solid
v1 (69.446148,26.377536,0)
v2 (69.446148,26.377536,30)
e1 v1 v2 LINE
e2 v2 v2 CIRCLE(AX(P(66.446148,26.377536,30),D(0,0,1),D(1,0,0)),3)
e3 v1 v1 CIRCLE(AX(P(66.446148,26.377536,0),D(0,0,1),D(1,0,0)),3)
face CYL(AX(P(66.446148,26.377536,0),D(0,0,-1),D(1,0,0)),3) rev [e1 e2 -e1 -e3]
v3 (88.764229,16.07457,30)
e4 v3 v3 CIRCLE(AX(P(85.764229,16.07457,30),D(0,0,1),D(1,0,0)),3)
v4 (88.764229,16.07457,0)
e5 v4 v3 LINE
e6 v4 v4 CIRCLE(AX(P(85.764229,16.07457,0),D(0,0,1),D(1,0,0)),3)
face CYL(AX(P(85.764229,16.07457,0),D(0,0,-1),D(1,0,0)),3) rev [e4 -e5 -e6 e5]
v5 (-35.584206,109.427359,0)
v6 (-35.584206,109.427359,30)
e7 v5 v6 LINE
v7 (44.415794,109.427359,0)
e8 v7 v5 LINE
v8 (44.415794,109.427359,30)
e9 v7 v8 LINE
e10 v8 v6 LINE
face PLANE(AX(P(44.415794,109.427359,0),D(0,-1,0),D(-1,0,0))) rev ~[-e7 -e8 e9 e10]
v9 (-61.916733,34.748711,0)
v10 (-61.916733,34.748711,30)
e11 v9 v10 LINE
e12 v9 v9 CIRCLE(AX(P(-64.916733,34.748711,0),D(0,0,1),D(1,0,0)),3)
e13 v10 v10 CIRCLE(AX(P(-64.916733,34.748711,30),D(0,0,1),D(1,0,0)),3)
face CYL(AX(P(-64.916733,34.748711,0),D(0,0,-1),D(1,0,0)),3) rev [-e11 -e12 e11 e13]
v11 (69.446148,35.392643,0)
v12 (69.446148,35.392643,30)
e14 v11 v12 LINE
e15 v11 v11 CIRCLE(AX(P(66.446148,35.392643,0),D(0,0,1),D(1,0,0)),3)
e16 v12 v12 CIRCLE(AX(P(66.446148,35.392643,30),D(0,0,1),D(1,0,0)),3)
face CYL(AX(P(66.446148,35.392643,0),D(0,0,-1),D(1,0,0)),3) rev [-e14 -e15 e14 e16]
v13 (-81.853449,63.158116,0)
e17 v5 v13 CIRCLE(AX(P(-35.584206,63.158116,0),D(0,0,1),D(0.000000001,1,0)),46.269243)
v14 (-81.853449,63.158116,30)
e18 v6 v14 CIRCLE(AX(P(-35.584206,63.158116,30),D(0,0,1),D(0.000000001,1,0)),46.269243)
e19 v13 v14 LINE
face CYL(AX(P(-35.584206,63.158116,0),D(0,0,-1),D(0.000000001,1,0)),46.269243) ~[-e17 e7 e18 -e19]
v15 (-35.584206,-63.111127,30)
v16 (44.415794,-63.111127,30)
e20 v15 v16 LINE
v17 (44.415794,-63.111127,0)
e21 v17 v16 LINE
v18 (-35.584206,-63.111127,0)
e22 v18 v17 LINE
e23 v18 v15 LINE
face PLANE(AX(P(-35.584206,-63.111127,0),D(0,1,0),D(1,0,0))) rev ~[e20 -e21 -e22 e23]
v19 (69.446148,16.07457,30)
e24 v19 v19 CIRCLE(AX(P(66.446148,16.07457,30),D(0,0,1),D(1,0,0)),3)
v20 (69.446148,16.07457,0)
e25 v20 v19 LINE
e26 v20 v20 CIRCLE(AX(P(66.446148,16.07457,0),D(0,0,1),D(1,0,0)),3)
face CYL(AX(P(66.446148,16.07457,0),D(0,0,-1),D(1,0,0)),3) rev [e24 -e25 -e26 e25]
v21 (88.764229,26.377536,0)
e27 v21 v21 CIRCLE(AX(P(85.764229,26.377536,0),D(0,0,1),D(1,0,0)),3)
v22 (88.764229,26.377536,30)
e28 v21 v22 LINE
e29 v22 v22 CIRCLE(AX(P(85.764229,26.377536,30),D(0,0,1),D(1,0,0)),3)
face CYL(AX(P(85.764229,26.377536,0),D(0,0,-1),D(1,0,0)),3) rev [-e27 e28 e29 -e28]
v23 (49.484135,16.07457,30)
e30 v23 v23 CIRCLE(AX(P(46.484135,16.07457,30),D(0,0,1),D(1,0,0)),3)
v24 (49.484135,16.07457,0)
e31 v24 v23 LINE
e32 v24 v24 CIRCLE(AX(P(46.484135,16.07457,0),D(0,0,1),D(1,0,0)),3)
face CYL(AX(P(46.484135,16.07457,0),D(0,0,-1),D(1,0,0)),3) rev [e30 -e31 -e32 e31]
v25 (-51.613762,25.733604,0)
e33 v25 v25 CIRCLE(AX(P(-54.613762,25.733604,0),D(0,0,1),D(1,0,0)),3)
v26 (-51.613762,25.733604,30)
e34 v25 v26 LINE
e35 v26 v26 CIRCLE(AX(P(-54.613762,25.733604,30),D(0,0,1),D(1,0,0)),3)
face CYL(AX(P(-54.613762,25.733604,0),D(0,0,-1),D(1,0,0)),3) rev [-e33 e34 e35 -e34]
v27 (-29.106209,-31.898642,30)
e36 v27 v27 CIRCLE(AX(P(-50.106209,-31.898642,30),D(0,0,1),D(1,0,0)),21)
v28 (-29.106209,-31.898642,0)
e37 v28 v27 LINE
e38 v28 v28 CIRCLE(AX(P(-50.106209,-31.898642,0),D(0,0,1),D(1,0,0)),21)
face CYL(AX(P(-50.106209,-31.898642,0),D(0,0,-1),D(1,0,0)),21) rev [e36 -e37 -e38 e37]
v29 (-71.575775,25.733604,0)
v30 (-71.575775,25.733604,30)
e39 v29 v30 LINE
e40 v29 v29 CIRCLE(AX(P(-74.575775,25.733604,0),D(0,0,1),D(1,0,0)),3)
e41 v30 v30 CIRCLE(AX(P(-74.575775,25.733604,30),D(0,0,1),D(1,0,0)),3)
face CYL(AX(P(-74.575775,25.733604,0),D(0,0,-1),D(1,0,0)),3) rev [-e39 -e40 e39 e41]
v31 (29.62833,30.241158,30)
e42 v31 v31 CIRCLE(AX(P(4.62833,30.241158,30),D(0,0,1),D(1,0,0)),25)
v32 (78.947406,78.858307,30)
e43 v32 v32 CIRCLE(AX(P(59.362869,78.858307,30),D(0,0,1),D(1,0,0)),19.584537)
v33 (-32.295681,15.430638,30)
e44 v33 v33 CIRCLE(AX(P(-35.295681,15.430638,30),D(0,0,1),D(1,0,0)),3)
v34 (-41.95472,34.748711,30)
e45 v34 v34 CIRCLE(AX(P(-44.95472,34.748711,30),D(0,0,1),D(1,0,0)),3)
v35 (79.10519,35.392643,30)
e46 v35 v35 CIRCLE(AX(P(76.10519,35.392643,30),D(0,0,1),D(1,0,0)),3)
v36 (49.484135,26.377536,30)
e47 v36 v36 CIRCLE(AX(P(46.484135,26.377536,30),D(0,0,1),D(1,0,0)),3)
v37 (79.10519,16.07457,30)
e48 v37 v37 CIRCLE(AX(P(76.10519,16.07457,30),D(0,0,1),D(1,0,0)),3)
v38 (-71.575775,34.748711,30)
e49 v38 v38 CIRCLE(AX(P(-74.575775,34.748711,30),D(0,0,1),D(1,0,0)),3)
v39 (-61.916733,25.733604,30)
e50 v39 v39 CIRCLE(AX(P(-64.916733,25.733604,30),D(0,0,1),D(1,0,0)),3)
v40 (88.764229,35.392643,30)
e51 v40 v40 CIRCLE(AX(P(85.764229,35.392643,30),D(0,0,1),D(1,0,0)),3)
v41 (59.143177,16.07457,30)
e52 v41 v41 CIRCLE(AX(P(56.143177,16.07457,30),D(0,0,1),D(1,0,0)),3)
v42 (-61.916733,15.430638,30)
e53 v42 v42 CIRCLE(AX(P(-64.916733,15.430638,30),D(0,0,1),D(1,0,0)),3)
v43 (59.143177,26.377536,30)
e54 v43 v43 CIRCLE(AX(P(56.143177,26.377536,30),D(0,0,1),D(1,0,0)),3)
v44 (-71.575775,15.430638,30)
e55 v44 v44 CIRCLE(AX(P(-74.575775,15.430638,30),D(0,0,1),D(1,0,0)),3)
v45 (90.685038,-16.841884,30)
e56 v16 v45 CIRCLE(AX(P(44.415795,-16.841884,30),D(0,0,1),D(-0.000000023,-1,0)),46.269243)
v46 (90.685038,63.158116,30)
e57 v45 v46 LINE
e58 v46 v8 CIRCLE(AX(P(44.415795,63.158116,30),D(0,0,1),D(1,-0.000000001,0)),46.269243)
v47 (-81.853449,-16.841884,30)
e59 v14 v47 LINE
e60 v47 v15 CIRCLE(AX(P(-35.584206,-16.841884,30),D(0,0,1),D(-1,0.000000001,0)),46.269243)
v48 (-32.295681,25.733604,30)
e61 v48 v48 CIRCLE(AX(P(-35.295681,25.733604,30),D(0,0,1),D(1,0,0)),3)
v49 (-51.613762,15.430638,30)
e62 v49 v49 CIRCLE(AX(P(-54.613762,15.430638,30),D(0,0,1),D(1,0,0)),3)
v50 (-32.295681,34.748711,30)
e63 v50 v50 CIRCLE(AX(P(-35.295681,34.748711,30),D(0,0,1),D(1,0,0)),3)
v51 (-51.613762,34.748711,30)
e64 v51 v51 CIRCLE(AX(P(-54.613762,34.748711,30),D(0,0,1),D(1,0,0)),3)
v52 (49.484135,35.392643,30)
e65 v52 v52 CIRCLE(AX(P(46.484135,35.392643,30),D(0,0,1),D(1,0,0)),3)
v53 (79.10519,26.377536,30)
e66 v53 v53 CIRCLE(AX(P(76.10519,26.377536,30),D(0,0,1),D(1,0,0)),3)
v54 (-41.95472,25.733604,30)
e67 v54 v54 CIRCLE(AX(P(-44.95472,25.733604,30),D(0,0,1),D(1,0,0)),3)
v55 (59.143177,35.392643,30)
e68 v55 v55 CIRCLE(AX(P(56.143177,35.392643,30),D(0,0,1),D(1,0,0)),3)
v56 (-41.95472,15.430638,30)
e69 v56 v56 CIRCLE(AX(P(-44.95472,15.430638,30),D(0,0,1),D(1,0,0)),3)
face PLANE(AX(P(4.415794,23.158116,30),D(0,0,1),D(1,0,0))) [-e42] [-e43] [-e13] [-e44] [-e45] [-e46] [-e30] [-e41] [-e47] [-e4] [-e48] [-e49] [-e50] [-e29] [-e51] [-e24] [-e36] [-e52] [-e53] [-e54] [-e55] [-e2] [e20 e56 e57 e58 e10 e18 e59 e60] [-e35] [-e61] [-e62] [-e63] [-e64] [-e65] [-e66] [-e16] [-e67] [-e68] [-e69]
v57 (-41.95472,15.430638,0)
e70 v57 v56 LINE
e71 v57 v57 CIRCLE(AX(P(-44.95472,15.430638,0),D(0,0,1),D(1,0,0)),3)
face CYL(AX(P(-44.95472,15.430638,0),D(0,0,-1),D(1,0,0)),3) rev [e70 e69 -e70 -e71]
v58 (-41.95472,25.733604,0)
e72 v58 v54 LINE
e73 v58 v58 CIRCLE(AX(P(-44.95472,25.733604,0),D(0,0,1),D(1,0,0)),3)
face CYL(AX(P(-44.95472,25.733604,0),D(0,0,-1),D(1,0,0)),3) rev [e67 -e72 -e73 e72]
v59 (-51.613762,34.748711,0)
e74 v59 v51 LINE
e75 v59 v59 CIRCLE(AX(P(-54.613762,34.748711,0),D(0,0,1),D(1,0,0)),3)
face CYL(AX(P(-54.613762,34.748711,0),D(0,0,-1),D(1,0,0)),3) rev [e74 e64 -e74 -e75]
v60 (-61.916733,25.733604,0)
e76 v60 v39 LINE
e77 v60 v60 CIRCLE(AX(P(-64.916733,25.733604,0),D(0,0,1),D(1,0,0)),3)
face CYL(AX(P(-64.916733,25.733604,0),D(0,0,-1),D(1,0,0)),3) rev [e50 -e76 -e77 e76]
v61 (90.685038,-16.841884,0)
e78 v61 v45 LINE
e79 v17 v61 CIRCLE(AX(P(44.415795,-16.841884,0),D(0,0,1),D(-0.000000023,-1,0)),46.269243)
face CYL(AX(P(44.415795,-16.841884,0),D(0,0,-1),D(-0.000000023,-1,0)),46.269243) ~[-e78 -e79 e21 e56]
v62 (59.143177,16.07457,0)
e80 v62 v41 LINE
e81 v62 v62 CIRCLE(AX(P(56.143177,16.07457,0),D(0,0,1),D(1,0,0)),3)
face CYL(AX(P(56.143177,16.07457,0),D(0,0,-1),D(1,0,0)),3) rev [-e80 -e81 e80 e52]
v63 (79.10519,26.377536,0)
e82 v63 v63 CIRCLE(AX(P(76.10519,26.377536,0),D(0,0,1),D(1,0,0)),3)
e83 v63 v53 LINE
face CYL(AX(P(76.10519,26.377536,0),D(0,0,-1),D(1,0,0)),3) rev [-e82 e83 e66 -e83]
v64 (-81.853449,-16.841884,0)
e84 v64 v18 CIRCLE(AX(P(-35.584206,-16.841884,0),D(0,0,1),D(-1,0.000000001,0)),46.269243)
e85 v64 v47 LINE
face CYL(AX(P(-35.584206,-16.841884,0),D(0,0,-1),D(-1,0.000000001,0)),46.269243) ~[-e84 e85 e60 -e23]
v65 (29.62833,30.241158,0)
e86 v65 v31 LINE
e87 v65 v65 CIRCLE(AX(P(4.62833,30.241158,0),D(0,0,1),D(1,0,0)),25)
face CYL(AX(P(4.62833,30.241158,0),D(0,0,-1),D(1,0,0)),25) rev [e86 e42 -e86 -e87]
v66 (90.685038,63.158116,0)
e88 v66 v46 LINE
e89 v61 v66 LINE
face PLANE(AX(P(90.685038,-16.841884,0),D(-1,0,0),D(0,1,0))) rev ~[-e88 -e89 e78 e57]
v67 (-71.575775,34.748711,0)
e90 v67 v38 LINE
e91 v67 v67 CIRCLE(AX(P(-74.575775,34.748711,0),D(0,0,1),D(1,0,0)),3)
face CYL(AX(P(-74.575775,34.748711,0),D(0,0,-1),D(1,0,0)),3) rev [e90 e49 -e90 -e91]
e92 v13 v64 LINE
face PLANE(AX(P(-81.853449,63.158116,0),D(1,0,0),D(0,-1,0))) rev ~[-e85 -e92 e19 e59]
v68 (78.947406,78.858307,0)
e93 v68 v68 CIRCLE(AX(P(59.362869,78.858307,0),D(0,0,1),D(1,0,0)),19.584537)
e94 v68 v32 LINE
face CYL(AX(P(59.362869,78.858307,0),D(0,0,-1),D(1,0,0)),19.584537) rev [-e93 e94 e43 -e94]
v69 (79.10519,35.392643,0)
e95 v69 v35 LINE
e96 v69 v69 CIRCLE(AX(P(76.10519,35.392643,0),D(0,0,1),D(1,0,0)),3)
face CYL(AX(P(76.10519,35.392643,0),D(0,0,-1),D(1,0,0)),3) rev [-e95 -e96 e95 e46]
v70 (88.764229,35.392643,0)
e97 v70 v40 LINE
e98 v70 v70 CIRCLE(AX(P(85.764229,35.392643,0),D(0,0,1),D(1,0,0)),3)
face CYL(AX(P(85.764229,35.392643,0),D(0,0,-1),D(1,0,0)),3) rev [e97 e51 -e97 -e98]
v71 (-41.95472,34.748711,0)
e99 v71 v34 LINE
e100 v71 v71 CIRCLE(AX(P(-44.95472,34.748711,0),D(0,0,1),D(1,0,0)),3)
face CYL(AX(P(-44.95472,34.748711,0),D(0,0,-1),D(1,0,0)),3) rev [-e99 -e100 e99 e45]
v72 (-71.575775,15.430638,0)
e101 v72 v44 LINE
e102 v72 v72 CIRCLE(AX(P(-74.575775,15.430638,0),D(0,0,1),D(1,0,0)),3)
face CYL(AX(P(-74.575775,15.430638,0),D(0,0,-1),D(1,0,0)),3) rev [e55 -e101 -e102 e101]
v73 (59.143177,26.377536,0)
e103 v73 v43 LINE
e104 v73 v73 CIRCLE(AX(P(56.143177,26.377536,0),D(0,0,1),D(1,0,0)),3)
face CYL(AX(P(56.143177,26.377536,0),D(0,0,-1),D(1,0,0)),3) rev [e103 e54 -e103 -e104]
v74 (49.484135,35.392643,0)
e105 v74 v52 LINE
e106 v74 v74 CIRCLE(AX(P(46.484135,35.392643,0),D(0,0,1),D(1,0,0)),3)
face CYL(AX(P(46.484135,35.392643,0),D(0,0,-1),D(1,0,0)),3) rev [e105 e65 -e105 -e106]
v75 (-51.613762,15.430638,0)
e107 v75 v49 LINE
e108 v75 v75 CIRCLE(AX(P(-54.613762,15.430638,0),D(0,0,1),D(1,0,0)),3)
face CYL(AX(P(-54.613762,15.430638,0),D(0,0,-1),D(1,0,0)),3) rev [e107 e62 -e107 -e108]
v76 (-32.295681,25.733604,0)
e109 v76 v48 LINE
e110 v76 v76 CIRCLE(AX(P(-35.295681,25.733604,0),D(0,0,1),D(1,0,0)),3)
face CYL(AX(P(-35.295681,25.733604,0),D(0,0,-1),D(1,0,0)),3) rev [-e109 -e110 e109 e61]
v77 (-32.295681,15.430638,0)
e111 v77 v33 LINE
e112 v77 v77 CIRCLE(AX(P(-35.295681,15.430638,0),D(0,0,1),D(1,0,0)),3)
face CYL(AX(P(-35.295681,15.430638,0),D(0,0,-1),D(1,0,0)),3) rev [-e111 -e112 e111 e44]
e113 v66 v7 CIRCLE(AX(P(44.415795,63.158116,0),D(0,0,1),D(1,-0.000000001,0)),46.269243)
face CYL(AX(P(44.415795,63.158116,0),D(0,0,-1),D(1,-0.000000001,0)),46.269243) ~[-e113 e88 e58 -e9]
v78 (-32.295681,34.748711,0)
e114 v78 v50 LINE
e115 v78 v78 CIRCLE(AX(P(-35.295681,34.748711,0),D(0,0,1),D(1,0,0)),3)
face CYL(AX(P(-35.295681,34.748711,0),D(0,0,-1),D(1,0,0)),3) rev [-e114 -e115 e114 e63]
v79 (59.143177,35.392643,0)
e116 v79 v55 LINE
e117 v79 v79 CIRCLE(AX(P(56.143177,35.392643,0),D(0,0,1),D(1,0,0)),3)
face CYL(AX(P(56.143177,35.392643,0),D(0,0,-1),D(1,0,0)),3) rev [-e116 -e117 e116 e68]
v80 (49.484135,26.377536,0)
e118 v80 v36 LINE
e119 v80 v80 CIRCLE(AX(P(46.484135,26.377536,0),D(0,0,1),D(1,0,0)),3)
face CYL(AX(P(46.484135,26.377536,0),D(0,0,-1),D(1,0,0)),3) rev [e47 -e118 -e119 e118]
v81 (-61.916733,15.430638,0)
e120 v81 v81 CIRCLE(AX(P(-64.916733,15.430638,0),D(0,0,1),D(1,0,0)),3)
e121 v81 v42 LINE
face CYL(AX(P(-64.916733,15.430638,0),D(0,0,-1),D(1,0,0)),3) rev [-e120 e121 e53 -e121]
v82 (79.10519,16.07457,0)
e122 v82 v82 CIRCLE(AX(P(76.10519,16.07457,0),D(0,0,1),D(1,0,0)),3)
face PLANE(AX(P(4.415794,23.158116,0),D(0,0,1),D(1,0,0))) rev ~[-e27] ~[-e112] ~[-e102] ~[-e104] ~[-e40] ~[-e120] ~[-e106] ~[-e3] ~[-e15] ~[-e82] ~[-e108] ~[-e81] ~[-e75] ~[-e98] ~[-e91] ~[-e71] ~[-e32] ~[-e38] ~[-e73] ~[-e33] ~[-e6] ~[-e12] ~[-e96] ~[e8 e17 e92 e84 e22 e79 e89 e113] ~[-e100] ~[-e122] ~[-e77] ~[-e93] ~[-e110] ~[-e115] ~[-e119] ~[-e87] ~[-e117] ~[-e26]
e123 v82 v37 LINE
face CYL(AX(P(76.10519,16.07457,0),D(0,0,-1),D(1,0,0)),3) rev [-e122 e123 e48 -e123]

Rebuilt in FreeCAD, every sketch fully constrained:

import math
import FreeCAD as App
import Part
import Sketcher
from FreeCAD import Vector

doc = App.newDocument("Part")
params = doc.addObject("Spreadsheet::Sheet", "Params")
for row, (alias, value) in enumerate([
    ("sketch1_diameter", "42 mm"),
    ("sketch1_diameter2", "6 mm"),
    ("sketch1_diameter3", "50 mm"),
    ("sketch1_width", "80 mm"),
    ("pad1_length", "30 mm"),
    ("sketch2_diameter", "42 mm"),
    ("sketch2_diameter2", "6 mm"),
    ("sketch2_diameter3", "50 mm"),
    ("sketch2_width", "80 mm"),
    ("pad2_length", "30 mm"),
], start=1):
    params.set(f"A{row}", alias)
    params.set(f"B{row}", "=" + value)
    params.setAlias(f"B{row}", alias)

body = doc.addObject("PartDesign::Body", "Body")

sketch1 = body.newObject("Sketcher::SketchObject", "Sketch")
sketch1.AttachmentSupport = (doc.getObject("XY_Plane"), [""])
sketch1.MapMode = "FlatFace"
sketch1.addGeometry([
    Part.LineSegment(Vector(-35.584206, -63.111127, 0), Vector(44.415794, -63.111127, 0)),
    Part.ArcOfCircle(Part.Circle(Vector(44.415795, -16.841884, 0), Vector(0, 0, 1), 46.269243), math.radians(-90.000001), math.radians(0)),
    Part.LineSegment(Vector(90.685038, -16.841884, 0), Vector(90.685038, 63.158116, 0)),
    Part.ArcOfCircle(Part.Circle(Vector(44.415795, 63.158116, 0), Vector(0, 0, 1), 46.269243), math.radians(0), math.radians(90.000001)),
    Part.LineSegment(Vector(44.415794, 109.427359, 0), Vector(-35.584206, 109.427359, 0)),
    Part.ArcOfCircle(Part.Circle(Vector(-35.584206, 63.158116, 0), Vector(0, 0, 1), 46.269243), math.radians(90), math.radians(180)),
    Part.LineSegment(Vector(-81.853449, 63.158116, 0), Vector(-81.853449, -16.841884, 0)),
    Part.ArcOfCircle(Part.Circle(Vector(-35.584206, -16.841884, 0), Vector(0, 0, 1), 46.269243), math.radians(180), math.radians(270)),
    Part.Circle(Vector(-50.106209, -31.898642, 0), Vector(0, 0, 1), 21),
    Part.Circle(Vector(-74.575775, 15.430638, 0), Vector(0, 0, 1), 3),
    Part.Circle(Vector(-64.916733, 15.430638, 0), Vector(0, 0, 1), 3),
    Part.Circle(Vector(-54.613762, 15.430638, 0), Vector(0, 0, 1), 3),
    Part.Circle(Vector(-44.95472, 15.430638, 0), Vector(0, 0, 1), 3),
    Part.Circle(Vector(-35.295681, 15.430638, 0), Vector(0, 0, 1), 3),
    Part.Circle(Vector(46.484135, 16.07457, 0), Vector(0, 0, 1), 3),
    Part.Circle(Vector(56.143177, 16.07457, 0), Vector(0, 0, 1), 3),
    Part.Circle(Vector(66.446148, 16.07457, 0), Vector(0, 0, 1), 3),
    Part.Circle(Vector(76.10519, 16.07457, 0), Vector(0, 0, 1), 3),
    Part.Circle(Vector(85.764229, 16.07457, 0), Vector(0, 0, 1), 3),
    Part.Circle(Vector(-74.575775, 25.733604, 0), Vector(0, 0, 1), 3),
    Part.Circle(Vector(-64.916733, 25.733604, 0), Vector(0, 0, 1), 3),
    Part.Circle(Vector(-74.575775, 34.748711, 0), Vector(0, 0, 1), 3),
    Part.Circle(Vector(-64.916733, 34.748711, 0), Vector(0, 0, 1), 3),
    Part.Circle(Vector(-54.613762, 25.733604, 0), Vector(0, 0, 1), 3),
    Part.Circle(Vector(-44.95472, 25.733604, 0), Vector(0, 0, 1), 3),
    Part.Circle(Vector(-54.613762, 34.748711, 0), Vector(0, 0, 1), 3),
    Part.Circle(Vector(-44.95472, 34.748711, 0), Vector(0, 0, 1), 3),
    Part.Circle(Vector(-35.295681, 25.733604, 0), Vector(0, 0, 1), 3),
    Part.Circle(Vector(-35.295681, 34.748711, 0), Vector(0, 0, 1), 3),
    Part.Circle(Vector(4.62833, 30.241158, 0), Vector(0, 0, 1), 25),
    Part.Circle(Vector(46.484135, 26.377536, 0), Vector(0, 0, 1), 3),
    Part.Circle(Vector(46.484135, 35.392643, 0), Vector(0, 0, 1), 3),
    Part.Circle(Vector(56.143177, 26.377536, 0), Vector(0, 0, 1), 3),
    Part.Circle(Vector(66.446148, 26.377536, 0), Vector(0, 0, 1), 3),
    Part.Circle(Vector(56.143177, 35.392643, 0), Vector(0, 0, 1), 3),
    Part.Circle(Vector(66.446148, 35.392643, 0), Vector(0, 0, 1), 3),
    Part.Circle(Vector(76.10519, 26.377536, 0), Vector(0, 0, 1), 3),
    Part.Circle(Vector(85.764229, 26.377536, 0), Vector(0, 0, 1), 3),
    Part.Circle(Vector(76.10519, 35.392643, 0), Vector(0, 0, 1), 3),
    Part.Circle(Vector(85.764229, 35.392643, 0), Vector(0, 0, 1), 3),
    Part.Circle(Vector(59.362869, 78.858307, 0), Vector(0, 0, 1), 19.584537),
], False)
sketch1.addConstraint([
    Sketcher.Constraint("Tangent", 0, 2, 1, 1),
    Sketcher.Constraint("Tangent", 1, 2, 2, 1),
    Sketcher.Constraint("Tangent", 2, 2, 3, 1),
    Sketcher.Constraint("Tangent", 3, 2, 4, 1),
    Sketcher.Constraint("Tangent", 4, 2, 5, 1),
    Sketcher.Constraint("Tangent", 5, 2, 6, 1),
    Sketcher.Constraint("Tangent", 6, 2, 7, 1),
    Sketcher.Constraint("Tangent", 7, 2, 0, 1),
    Sketcher.Constraint("Horizontal", 0),
    Sketcher.Constraint("Vertical", 2),
    Sketcher.Constraint("Horizontal", 4),
    Sketcher.Constraint("Vertical", 6),
    Sketcher.Constraint("Equal", 1, 3),
    Sketcher.Constraint("Equal", 3, 5),
    Sketcher.Constraint("Equal", 5, 7),
    Sketcher.Constraint("Equal", 9, 10),
    Sketcher.Constraint("Equal", 10, 11),
    Sketcher.Constraint("Equal", 11, 12),
    Sketcher.Constraint("Equal", 12, 13),
    Sketcher.Constraint("Equal", 13, 14),
    Sketcher.Constraint("Equal", 14, 15),
    Sketcher.Constraint("Equal", 15, 16),
    Sketcher.Constraint("Equal", 16, 17),
    Sketcher.Constraint("Equal", 17, 18),
    Sketcher.Constraint("Equal", 18, 19),
    Sketcher.Constraint("Equal", 19, 20),
    Sketcher.Constraint("Equal", 20, 21),
    Sketcher.Constraint("Equal", 21, 22),
    Sketcher.Constraint("Equal", 22, 23),
    Sketcher.Constraint("Equal", 23, 24),
    Sketcher.Constraint("Equal", 24, 25),
    Sketcher.Constraint("Equal", 25, 26),
    Sketcher.Constraint("Equal", 26, 27),
    Sketcher.Constraint("Equal", 27, 28),
    Sketcher.Constraint("Equal", 28, 30),
    Sketcher.Constraint("Equal", 30, 31),
    Sketcher.Constraint("Equal", 31, 32),
    Sketcher.Constraint("Equal", 32, 33),
    Sketcher.Constraint("Equal", 33, 34),
    Sketcher.Constraint("Equal", 34, 35),
    Sketcher.Constraint("Equal", 35, 36),
    Sketcher.Constraint("Equal", 36, 37),
    Sketcher.Constraint("Equal", 37, 38),
    Sketcher.Constraint("Equal", 38, 39),
    Sketcher.Constraint("Horizontal", 9, 3, 10, 3),
    Sketcher.Constraint("Horizontal", 10, 3, 11, 3),
    Sketcher.Constraint("Horizontal", 11, 3, 12, 3),
    Sketcher.Constraint("Horizontal", 12, 3, 13, 3),
    Sketcher.Constraint("Horizontal", 14, 3, 15, 3),
    Sketcher.Constraint("Horizontal", 15, 3, 16, 3),
    Sketcher.Constraint("Horizontal", 16, 3, 17, 3),
    Sketcher.Constraint("Horizontal", 17, 3, 18, 3),
    Sketcher.Constraint("Horizontal", 19, 3, 20, 3),
    Sketcher.Constraint("Horizontal", 21, 3, 22, 3),
    Sketcher.Constraint("Horizontal", 20, 3, 23, 3),
    Sketcher.Constraint("Horizontal", 23, 3, 24, 3),
    Sketcher.Constraint("Horizontal", 22, 3, 25, 3),
    Sketcher.Constraint("Horizontal", 25, 3, 26, 3),
    Sketcher.Constraint("Horizontal", 24, 3, 27, 3),
    Sketcher.Constraint("Horizontal", 26, 3, 28, 3),
    Sketcher.Constraint("Horizontal", 30, 3, 32, 3),
    Sketcher.Constraint("Horizontal", 32, 3, 33, 3),
    Sketcher.Constraint("Horizontal", 31, 3, 34, 3),
    Sketcher.Constraint("Horizontal", 34, 3, 35, 3),
    Sketcher.Constraint("Horizontal", 33, 3, 36, 3),
    Sketcher.Constraint("Horizontal", 36, 3, 37, 3),
    Sketcher.Constraint("Horizontal", 35, 3, 38, 3),
    Sketcher.Constraint("Horizontal", 38, 3, 39, 3),
    Sketcher.Constraint("Vertical", 9, 3, 19, 3),
    Sketcher.Constraint("Vertical", 10, 3, 20, 3),
    Sketcher.Constraint("Vertical", 19, 3, 21, 3),
    Sketcher.Constraint("Vertical", 20, 3, 22, 3),
    Sketcher.Constraint("Vertical", 11, 3, 23, 3),
    Sketcher.Constraint("Vertical", 12, 3, 24, 3),
    Sketcher.Constraint("Vertical", 23, 3, 25, 3),
    Sketcher.Constraint("Vertical", 24, 3, 26, 3),
    Sketcher.Constraint("Vertical", 13, 3, 27, 3),
    Sketcher.Constraint("Vertical", 27, 3, 28, 3),
    Sketcher.Constraint("Vertical", 14, 3, 30, 3),
    Sketcher.Constraint("Vertical", 30, 3, 31, 3),
    Sketcher.Constraint("Vertical", 15, 3, 32, 3),
    Sketcher.Constraint("Vertical", 16, 3, 33, 3),
    Sketcher.Constraint("Vertical", 32, 3, 34, 3),
    Sketcher.Constraint("Vertical", 33, 3, 35, 3),
    Sketcher.Constraint("Vertical", 17, 3, 36, 3),
    Sketcher.Constraint("Vertical", 18, 3, 37, 3),
    Sketcher.Constraint("Vertical", 36, 3, 38, 3),
    Sketcher.Constraint("Vertical", 37, 3, 39, 3),
    Sketcher.Constraint("Equal", 4, 2),
    Sketcher.Constraint("Diameter", 8, 42.0),
    Sketcher.Constraint("Diameter", 9, 6.0),
    Sketcher.Constraint("Diameter", 29, 50.0),
    Sketcher.Constraint("DistanceX", 0, 1, 0, 2, 80.0),
    Sketcher.Constraint("Diameter", 40, 39.169074),
    Sketcher.Constraint("Radius", 1, 46.269243),
    Sketcher.Constraint("DistanceX", 8, 3, -1, 1, 50.106209),
    Sketcher.Constraint("DistanceY", 8, 3, -1, 1, 31.898642),
    Sketcher.Constraint("DistanceX", 12, 3, -1, 1, 44.95472),
    Sketcher.Constraint("DistanceX", 13, 3, -1, 1, 35.295681),
    Sketcher.Constraint("DistanceY", -1, 1, 14, 3, 16.07457),
    Sketcher.Constraint("DistanceX", -1, 1, 17, 3, 76.10519),
    Sketcher.Constraint("DistanceX", -1, 1, 18, 3, 85.764229),
    Sketcher.Constraint("DistanceY", -1, 1, 21, 3, 34.748711),
    Sketcher.Constraint("DistanceX", -1, 1, 29, 3, 4.62833),
    Sketcher.Constraint("DistanceX", -1, 1, 40, 3, 59.362869),
    Sketcher.Constraint("DistanceX", -1, 1, 1, 2, 90.685038),
    Sketcher.Constraint("DistanceY", -1, 1, 3, 2, 109.427359),
    Sketcher.Constraint("DistanceX", 9, 3, 7, 3, 38.991569),
    Sketcher.Constraint("DistanceY", 8, 3, 9, 3, 47.32928),
    Sketcher.Constraint("DistanceX", 10, 3, 1, 3, 109.332528),
    Sketcher.Constraint("DistanceX", 10, 3, 11, 3, 10.302971),
    Sketcher.Constraint("DistanceX", 1, 3, 14, 3, 2.06834),
    Sketcher.Constraint("DistanceX", 1, 3, 15, 3, 11.727382),
    Sketcher.Constraint("DistanceX", 15, 3, 16, 3, 10.302971),
    Sketcher.Constraint("DistanceY", 13, 3, 29, 3, 14.81052),
    Sketcher.Constraint("DistanceY", 30, 3, 3, 3, 36.78058),
    Sketcher.Constraint("DistanceY", 3, 3, 40, 3, 15.700191),
    Sketcher.Constraint("DistanceY", -1, 1, 19, 3, 25.733604),
    Sketcher.Constraint("DistanceY", -1, 1, 31, 3, 35.392643),
])
sketch1.setExpression("Constraints[89]", "Params.sketch1_diameter")
sketch1.setExpression("Constraints[90]", "Params.sketch1_diameter2")
sketch1.setExpression("Constraints[91]", "Params.sketch1_diameter3")
sketch1.setExpression("Constraints[92]", "Params.sketch1_width")
pad1 = body.newObject("PartDesign::Pad", "Pad")
pad1.Profile = sketch1
pad1.setExpression("Length", "Params.pad1_length")

sketch2 = body.newObject("Sketcher::SketchObject", "Sketch001")
sketch2.AttachmentSupport = (doc.getObject("XY_Plane"), [""])
sketch2.MapMode = "FlatFace"
sketch2.addGeometry([
    Part.LineSegment(Vector(-35.584206, -63.111127, 0), Vector(44.415794, -63.111127, 0)),
    Part.ArcOfCircle(Part.Circle(Vector(44.415795, -16.841884, 0), Vector(0, 0, 1), 46.269243), math.radians(-90.000001), math.radians(0)),
    Part.LineSegment(Vector(90.685038, -16.841884, 0), Vector(90.685038, 63.158116, 0)),
    Part.ArcOfCircle(Part.Circle(Vector(44.415795, 63.158116, 0), Vector(0, 0, 1), 46.269243), math.radians(0), math.radians(90.000001)),
    Part.LineSegment(Vector(44.415794, 109.427359, 0), Vector(-35.584206, 109.427359, 0)),
    Part.ArcOfCircle(Part.Circle(Vector(-35.584206, 63.158116, 0), Vector(0, 0, 1), 46.269243), math.radians(90), math.radians(180)),
    Part.LineSegment(Vector(-81.853449, 63.158116, 0), Vector(-81.853449, -16.841884, 0)),
    Part.ArcOfCircle(Part.Circle(Vector(-35.584206, -16.841884, 0), Vector(0, 0, 1), 46.269243), math.radians(180), math.radians(270)),
    Part.Circle(Vector(-50.106209, -31.898642, 0), Vector(0, 0, 1), 21),
    Part.Circle(Vector(-74.575775, 15.430638, 0), Vector(0, 0, 1), 3),
    Part.Circle(Vector(-64.916733, 15.430638, 0), Vector(0, 0, 1), 3),
    Part.Circle(Vector(-54.613762, 15.430638, 0), Vector(0, 0, 1), 3),
    Part.Circle(Vector(-44.95472, 15.430638, 0), Vector(0, 0, 1), 3),
    Part.Circle(Vector(-35.295681, 15.430638, 0), Vector(0, 0, 1), 3),
    Part.Circle(Vector(46.484135, 16.07457, 0), Vector(0, 0, 1), 3),
    Part.Circle(Vector(56.143177, 16.07457, 0), Vector(0, 0, 1), 3),
    Part.Circle(Vector(66.446148, 16.07457, 0), Vector(0, 0, 1), 3),
    Part.Circle(Vector(76.10519, 16.07457, 0), Vector(0, 0, 1), 3),
    Part.Circle(Vector(85.764229, 16.07457, 0), Vector(0, 0, 1), 3),
    Part.Circle(Vector(-74.575775, 25.733604, 0), Vector(0, 0, 1), 3),
    Part.Circle(Vector(-64.916733, 25.733604, 0), Vector(0, 0, 1), 3),
    Part.Circle(Vector(-74.575775, 34.748711, 0), Vector(0, 0, 1), 3),
    Part.Circle(Vector(-64.916733, 34.748711, 0), Vector(0, 0, 1), 3),
    Part.Circle(Vector(-54.613762, 25.733604, 0), Vector(0, 0, 1), 3),
    Part.Circle(Vector(-44.95472, 25.733604, 0), Vector(0, 0, 1), 3),
    Part.Circle(Vector(-54.613762, 34.748711, 0), Vector(0, 0, 1), 3),
    Part.Circle(Vector(-44.95472, 34.748711, 0), Vector(0, 0, 1), 3),
    Part.Circle(Vector(-35.295681, 25.733604, 0), Vector(0, 0, 1), 3),
    Part.Circle(Vector(-35.295681, 34.748711, 0), Vector(0, 0, 1), 3),
    Part.Circle(Vector(4.62833, 30.241158, 0), Vector(0, 0, 1), 25),
    Part.Circle(Vector(46.484135, 26.377536, 0), Vector(0, 0, 1), 3),
    Part.Circle(Vector(46.484135, 35.392643, 0), Vector(0, 0, 1), 3),
    Part.Circle(Vector(56.143177, 26.377536, 0), Vector(0, 0, 1), 3),
    Part.Circle(Vector(66.446148, 26.377536, 0), Vector(0, 0, 1), 3),
    Part.Circle(Vector(56.143177, 35.392643, 0), Vector(0, 0, 1), 3),
    Part.Circle(Vector(66.446148, 35.392643, 0), Vector(0, 0, 1), 3),
    Part.Circle(Vector(76.10519, 26.377536, 0), Vector(0, 0, 1), 3),
    Part.Circle(Vector(85.764229, 26.377536, 0), Vector(0, 0, 1), 3),
    Part.Circle(Vector(76.10519, 35.392643, 0), Vector(0, 0, 1), 3),
    Part.Circle(Vector(85.764229, 35.392643, 0), Vector(0, 0, 1), 3),
    Part.Circle(Vector(59.362869, 78.858307, 0), Vector(0, 0, 1), 19.584537),
], False)
sketch2.addConstraint([
    Sketcher.Constraint("Tangent", 0, 2, 1, 1),
    Sketcher.Constraint("Tangent", 1, 2, 2, 1),
    Sketcher.Constraint("Tangent", 2, 2, 3, 1),
    Sketcher.Constraint("Tangent", 3, 2, 4, 1),
    Sketcher.Constraint("Tangent", 4, 2, 5, 1),
    Sketcher.Constraint("Tangent", 5, 2, 6, 1),
    Sketcher.Constraint("Tangent", 6, 2, 7, 1),
    Sketcher.Constraint("Tangent", 7, 2, 0, 1),
    Sketcher.Constraint("Horizontal", 0),
    Sketcher.Constraint("Vertical", 2),
    Sketcher.Constraint("Horizontal", 4),
    Sketcher.Constraint("Vertical", 6),
    Sketcher.Constraint("Equal", 1, 3),
    Sketcher.Constraint("Equal", 3, 5),
    Sketcher.Constraint("Equal", 5, 7),
    Sketcher.Constraint("Equal", 9, 10),
    Sketcher.Constraint("Equal", 10, 11),
    Sketcher.Constraint("Equal", 11, 12),
    Sketcher.Constraint("Equal", 12, 13),
    Sketcher.Constraint("Equal", 13, 14),
    Sketcher.Constraint("Equal", 14, 15),
    Sketcher.Constraint("Equal", 15, 16),
    Sketcher.Constraint("Equal", 16, 17),
    Sketcher.Constraint("Equal", 17, 18),
    Sketcher.Constraint("Equal", 18, 19),
    Sketcher.Constraint("Equal", 19, 20),
    Sketcher.Constraint("Equal", 20, 21),
    Sketcher.Constraint("Equal", 21, 22),
    Sketcher.Constraint("Equal", 22, 23),
    Sketcher.Constraint("Equal", 23, 24),
    Sketcher.Constraint("Equal", 24, 25),
    Sketcher.Constraint("Equal", 25, 26),
    Sketcher.Constraint("Equal", 26, 27),
    Sketcher.Constraint("Equal", 27, 28),
    Sketcher.Constraint("Equal", 28, 30),
    Sketcher.Constraint("Equal", 30, 31),
    Sketcher.Constraint("Equal", 31, 32),
    Sketcher.Constraint("Equal", 32, 33),
    Sketcher.Constraint("Equal", 33, 34),
    Sketcher.Constraint("Equal", 34, 35),
    Sketcher.Constraint("Equal", 35, 36),
    Sketcher.Constraint("Equal", 36, 37),
    Sketcher.Constraint("Equal", 37, 38),
    Sketcher.Constraint("Equal", 38, 39),
    Sketcher.Constraint("Horizontal", 9, 3, 10, 3),
    Sketcher.Constraint("Horizontal", 10, 3, 11, 3),
    Sketcher.Constraint("Horizontal", 11, 3, 12, 3),
    Sketcher.Constraint("Horizontal", 12, 3, 13, 3),
    Sketcher.Constraint("Horizontal", 14, 3, 15, 3),
    Sketcher.Constraint("Horizontal", 15, 3, 16, 3),
    Sketcher.Constraint("Horizontal", 16, 3, 17, 3),
    Sketcher.Constraint("Horizontal", 17, 3, 18, 3),
    Sketcher.Constraint("Horizontal", 19, 3, 20, 3),
    Sketcher.Constraint("Horizontal", 21, 3, 22, 3),
    Sketcher.Constraint("Horizontal", 20, 3, 23, 3),
    Sketcher.Constraint("Horizontal", 23, 3, 24, 3),
    Sketcher.Constraint("Horizontal", 22, 3, 25, 3),
    Sketcher.Constraint("Horizontal", 25, 3, 26, 3),
    Sketcher.Constraint("Horizontal", 24, 3, 27, 3),
    Sketcher.Constraint("Horizontal", 26, 3, 28, 3),
    Sketcher.Constraint("Horizontal", 30, 3, 32, 3),
    Sketcher.Constraint("Horizontal", 32, 3, 33, 3),
    Sketcher.Constraint("Horizontal", 31, 3, 34, 3),
    Sketcher.Constraint("Horizontal", 34, 3, 35, 3),
    Sketcher.Constraint("Horizontal", 33, 3, 36, 3),
    Sketcher.Constraint("Horizontal", 36, 3, 37, 3),
    Sketcher.Constraint("Horizontal", 35, 3, 38, 3),
    Sketcher.Constraint("Horizontal", 38, 3, 39, 3),
    Sketcher.Constraint("Vertical", 9, 3, 19, 3),
    Sketcher.Constraint("Vertical", 10, 3, 20, 3),
    Sketcher.Constraint("Vertical", 19, 3, 21, 3),
    Sketcher.Constraint("Vertical", 20, 3, 22, 3),
    Sketcher.Constraint("Vertical", 11, 3, 23, 3),
    Sketcher.Constraint("Vertical", 12, 3, 24, 3),
    Sketcher.Constraint("Vertical", 23, 3, 25, 3),
    Sketcher.Constraint("Vertical", 24, 3, 26, 3),
    Sketcher.Constraint("Vertical", 13, 3, 27, 3),
    Sketcher.Constraint("Vertical", 27, 3, 28, 3),
    Sketcher.Constraint("Vertical", 14, 3, 30, 3),
    Sketcher.Constraint("Vertical", 30, 3, 31, 3),
    Sketcher.Constraint("Vertical", 15, 3, 32, 3),
    Sketcher.Constraint("Vertical", 16, 3, 33, 3),
    Sketcher.Constraint("Vertical", 32, 3, 34, 3),
    Sketcher.Constraint("Vertical", 33, 3, 35, 3),
    Sketcher.Constraint("Vertical", 17, 3, 36, 3),
    Sketcher.Constraint("Vertical", 18, 3, 37, 3),
    Sketcher.Constraint("Vertical", 36, 3, 38, 3),
    Sketcher.Constraint("Vertical", 37, 3, 39, 3),
    Sketcher.Constraint("Equal", 4, 2),
    Sketcher.Constraint("Diameter", 8, 42.0),
    Sketcher.Constraint("Diameter", 9, 6.0),
    Sketcher.Constraint("Diameter", 29, 50.0),
    Sketcher.Constraint("DistanceX", 0, 1, 0, 2, 80.0),
    Sketcher.Constraint("Diameter", 40, 39.169074),
    Sketcher.Constraint("Radius", 1, 46.269243),
    Sketcher.Constraint("DistanceX", 8, 3, -1, 1, 50.106209),
    Sketcher.Constraint("DistanceY", 8, 3, -1, 1, 31.898642),
    Sketcher.Constraint("DistanceX", 12, 3, -1, 1, 44.95472),
    Sketcher.Constraint("DistanceX", 13, 3, -1, 1, 35.295681),
    Sketcher.Constraint("DistanceY", -1, 1, 14, 3, 16.07457),
    Sketcher.Constraint("DistanceX", -1, 1, 17, 3, 76.10519),
    Sketcher.Constraint("DistanceX", -1, 1, 18, 3, 85.764229),
    Sketcher.Constraint("DistanceY", -1, 1, 21, 3, 34.748711),
    Sketcher.Constraint("DistanceX", -1, 1, 29, 3, 4.62833),
    Sketcher.Constraint("DistanceX", -1, 1, 40, 3, 59.362869),
    Sketcher.Constraint("DistanceX", -1, 1, 1, 2, 90.685038),
    Sketcher.Constraint("DistanceY", -1, 1, 3, 2, 109.427359),
    Sketcher.Constraint("DistanceX", 9, 3, 7, 3, 38.991569),
    Sketcher.Constraint("DistanceY", 8, 3, 9, 3, 47.32928),
    Sketcher.Constraint("DistanceX", 10, 3, 1, 3, 109.332528),
    Sketcher.Constraint("DistanceX", 10, 3, 11, 3, 10.302971),
    Sketcher.Constraint("DistanceX", 1, 3, 14, 3, 2.06834),
    Sketcher.Constraint("DistanceX", 1, 3, 15, 3, 11.727382),
    Sketcher.Constraint("DistanceX", 15, 3, 16, 3, 10.302971),
    Sketcher.Constraint("DistanceY", 13, 3, 29, 3, 14.81052),
    Sketcher.Constraint("DistanceY", 30, 3, 3, 3, 36.78058),
    Sketcher.Constraint("DistanceY", 3, 3, 40, 3, 15.700191),
    Sketcher.Constraint("DistanceY", -1, 1, 19, 3, 25.733604),
    Sketcher.Constraint("DistanceY", -1, 1, 31, 3, 35.392643),
])
sketch2.setExpression("Constraints[89]", "Params.sketch2_diameter")
sketch2.setExpression("Constraints[90]", "Params.sketch2_diameter2")
sketch2.setExpression("Constraints[91]", "Params.sketch2_diameter3")
sketch2.setExpression("Constraints[92]", "Params.sketch2_width")
pad2 = body.newObject("PartDesign::Pad", "Pad001")
pad2.Profile = sketch2
pad2.setExpression("Length", "Params.pad2_length")

doc.recompute()
